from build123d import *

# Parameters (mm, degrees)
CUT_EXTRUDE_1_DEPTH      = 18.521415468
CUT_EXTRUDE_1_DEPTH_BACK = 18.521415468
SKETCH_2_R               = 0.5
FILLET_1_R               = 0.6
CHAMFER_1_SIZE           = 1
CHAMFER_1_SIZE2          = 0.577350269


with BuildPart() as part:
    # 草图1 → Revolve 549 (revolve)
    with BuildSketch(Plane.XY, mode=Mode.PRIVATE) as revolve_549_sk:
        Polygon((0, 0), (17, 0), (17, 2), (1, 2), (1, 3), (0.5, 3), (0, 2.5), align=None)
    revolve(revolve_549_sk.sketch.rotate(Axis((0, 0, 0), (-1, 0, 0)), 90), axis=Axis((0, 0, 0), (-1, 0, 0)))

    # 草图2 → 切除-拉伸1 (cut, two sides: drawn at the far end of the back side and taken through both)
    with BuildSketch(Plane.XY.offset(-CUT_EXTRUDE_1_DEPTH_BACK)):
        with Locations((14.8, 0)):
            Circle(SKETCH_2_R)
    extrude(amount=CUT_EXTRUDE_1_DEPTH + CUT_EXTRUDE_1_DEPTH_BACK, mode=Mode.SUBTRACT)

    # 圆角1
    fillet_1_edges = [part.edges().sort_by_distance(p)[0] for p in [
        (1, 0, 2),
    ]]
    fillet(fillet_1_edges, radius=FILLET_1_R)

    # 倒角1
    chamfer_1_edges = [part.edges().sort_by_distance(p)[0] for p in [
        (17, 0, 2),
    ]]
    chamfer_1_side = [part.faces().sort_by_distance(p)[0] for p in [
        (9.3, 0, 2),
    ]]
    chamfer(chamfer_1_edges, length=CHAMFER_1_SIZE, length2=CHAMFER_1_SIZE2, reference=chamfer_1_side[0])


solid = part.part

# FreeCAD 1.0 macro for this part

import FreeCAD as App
import Part
import Sketcher
from FreeCAD import Vector
Q = App.Units.Quantity


def edges_at(feature, points):
    """Names of the edges that pass closest to the given points."""
    edges = feature.Shape.Edges
    near = lambda p: min(range(len(edges)), key=lambda i: edges[i].distToShape(Part.Vertex(*p))[0])
    return sorted({f"Edge{near(p) + 1}" for p in points})

doc = App.newDocument("Part")
body = doc.addObject("PartDesign::Body", "Body")

# Sketch on XY plane
sketch1 = body.newObject("Sketcher::SketchObject", "Sketch")
sketch1.AttachmentSupport = (doc.getObject("XY_Plane"), [""])
sketch1.MapMode = "FlatFace"
sketch1.addGeometry([
    Part.LineSegment(Vector(0, 0, 0), Vector(17, 0, 0)),  # 0
    Part.LineSegment(Vector(17, 0, 0), Vector(17, 2, 0)),  # 1
    Part.LineSegment(Vector(17, 2, 0), Vector(1, 2, 0)),  # 2
    Part.LineSegment(Vector(1, 2, 0), Vector(1, 3, 0)),  # 3
    Part.LineSegment(Vector(1, 3, 0), Vector(0.5, 3, 0)),  # 4
    Part.LineSegment(Vector(0.5, 3, 0), Vector(0, 2.5, 0)),  # 5
    Part.LineSegment(Vector(0, 2.5, 0), Vector(0, 0, 0)),  # 6
], False)
sketch1.addConstraint([
    Sketcher.Constraint("Coincident", 0, 2, 1, 1),
    Sketcher.Constraint("Coincident", 1, 2, 2, 1),
    Sketcher.Constraint("Coincident", 2, 2, 3, 1),
    Sketcher.Constraint("Coincident", 3, 2, 4, 1),
    Sketcher.Constraint("Coincident", 4, 2, 5, 1),
    Sketcher.Constraint("Coincident", 5, 2, 6, 1),
    Sketcher.Constraint("Coincident", 6, 2, 0, 1),
    Sketcher.Constraint("Horizontal", 0),
    Sketcher.Constraint("Vertical", 1),
    Sketcher.Constraint("Horizontal", 2),
    Sketcher.Constraint("Vertical", 3),
    Sketcher.Constraint("Horizontal", 4),
    Sketcher.Constraint("Vertical", 6),
    Sketcher.Constraint("Coincident", 6, 2, -1, 1),
    Sketcher.Constraint("DistanceX", 0, 1, 0, 2, Q("17 mm")),
    Sketcher.Constraint("DistanceX", 2, 2, 2, 1, Q("16 mm")),
    Sketcher.Constraint("DistanceY", 1, 1, 1, 2, Q("2 mm")),
    Sketcher.Constraint("DistanceY", 3, 1, 3, 2, Q("1 mm")),
    Sketcher.Constraint("Angle", 5, Q("-135 deg")),
    Sketcher.Constraint("DistanceX", 4, 2, 4, 1, Q("0.5 mm")),
])
revolution = body.newObject("PartDesign::Revolution", "Revolution")
revolution.Profile = sketch1
revolution.ReferenceAxis = (sketch1, ["H_Axis"])
revolution.Angle = 360

# Sketch on XY plane
sketch2 = body.newObject("Sketcher::SketchObject", "Sketch001")
sketch2.AttachmentSupport = (doc.getObject("XY_Plane"), [""])
sketch2.MapMode = "FlatFace"
sketch2.addGeometry(Part.Circle(Vector(14.8, 0, 0), Vector(0, 0, 1), 0.5), False)
sketch2.addConstraint([
    Sketcher.Constraint("PointOnObject", 0, 3, -1),
    Sketcher.Constraint("Diameter", 0, Q("1 mm")),
    Sketcher.Constraint("DistanceX", -1, 1, 0, 3, Q("14.8 mm")),
])
pocket1 = body.newObject("PartDesign::Pocket", "Pocket")
pocket1.Profile = sketch2
pocket1.Type = "ThroughAll"
pocket1.Midplane = True
doc.recompute()

fillet = body.newObject("PartDesign::Fillet", "Fillet")
fillet.Base = (pocket1, edges_at(pocket1, [(1, 0, 2)]))
fillet.Radius = 0.6
doc.recompute()

chamfer = body.newObject("PartDesign::Chamfer", "Chamfer")
chamfer.Base = (fillet, edges_at(fillet, [(17, 0, 2)]))
chamfer.ChamferType = "Two distances"
chamfer.Size = 1
chamfer.Size2 = 0.57735

doc.recompute()
